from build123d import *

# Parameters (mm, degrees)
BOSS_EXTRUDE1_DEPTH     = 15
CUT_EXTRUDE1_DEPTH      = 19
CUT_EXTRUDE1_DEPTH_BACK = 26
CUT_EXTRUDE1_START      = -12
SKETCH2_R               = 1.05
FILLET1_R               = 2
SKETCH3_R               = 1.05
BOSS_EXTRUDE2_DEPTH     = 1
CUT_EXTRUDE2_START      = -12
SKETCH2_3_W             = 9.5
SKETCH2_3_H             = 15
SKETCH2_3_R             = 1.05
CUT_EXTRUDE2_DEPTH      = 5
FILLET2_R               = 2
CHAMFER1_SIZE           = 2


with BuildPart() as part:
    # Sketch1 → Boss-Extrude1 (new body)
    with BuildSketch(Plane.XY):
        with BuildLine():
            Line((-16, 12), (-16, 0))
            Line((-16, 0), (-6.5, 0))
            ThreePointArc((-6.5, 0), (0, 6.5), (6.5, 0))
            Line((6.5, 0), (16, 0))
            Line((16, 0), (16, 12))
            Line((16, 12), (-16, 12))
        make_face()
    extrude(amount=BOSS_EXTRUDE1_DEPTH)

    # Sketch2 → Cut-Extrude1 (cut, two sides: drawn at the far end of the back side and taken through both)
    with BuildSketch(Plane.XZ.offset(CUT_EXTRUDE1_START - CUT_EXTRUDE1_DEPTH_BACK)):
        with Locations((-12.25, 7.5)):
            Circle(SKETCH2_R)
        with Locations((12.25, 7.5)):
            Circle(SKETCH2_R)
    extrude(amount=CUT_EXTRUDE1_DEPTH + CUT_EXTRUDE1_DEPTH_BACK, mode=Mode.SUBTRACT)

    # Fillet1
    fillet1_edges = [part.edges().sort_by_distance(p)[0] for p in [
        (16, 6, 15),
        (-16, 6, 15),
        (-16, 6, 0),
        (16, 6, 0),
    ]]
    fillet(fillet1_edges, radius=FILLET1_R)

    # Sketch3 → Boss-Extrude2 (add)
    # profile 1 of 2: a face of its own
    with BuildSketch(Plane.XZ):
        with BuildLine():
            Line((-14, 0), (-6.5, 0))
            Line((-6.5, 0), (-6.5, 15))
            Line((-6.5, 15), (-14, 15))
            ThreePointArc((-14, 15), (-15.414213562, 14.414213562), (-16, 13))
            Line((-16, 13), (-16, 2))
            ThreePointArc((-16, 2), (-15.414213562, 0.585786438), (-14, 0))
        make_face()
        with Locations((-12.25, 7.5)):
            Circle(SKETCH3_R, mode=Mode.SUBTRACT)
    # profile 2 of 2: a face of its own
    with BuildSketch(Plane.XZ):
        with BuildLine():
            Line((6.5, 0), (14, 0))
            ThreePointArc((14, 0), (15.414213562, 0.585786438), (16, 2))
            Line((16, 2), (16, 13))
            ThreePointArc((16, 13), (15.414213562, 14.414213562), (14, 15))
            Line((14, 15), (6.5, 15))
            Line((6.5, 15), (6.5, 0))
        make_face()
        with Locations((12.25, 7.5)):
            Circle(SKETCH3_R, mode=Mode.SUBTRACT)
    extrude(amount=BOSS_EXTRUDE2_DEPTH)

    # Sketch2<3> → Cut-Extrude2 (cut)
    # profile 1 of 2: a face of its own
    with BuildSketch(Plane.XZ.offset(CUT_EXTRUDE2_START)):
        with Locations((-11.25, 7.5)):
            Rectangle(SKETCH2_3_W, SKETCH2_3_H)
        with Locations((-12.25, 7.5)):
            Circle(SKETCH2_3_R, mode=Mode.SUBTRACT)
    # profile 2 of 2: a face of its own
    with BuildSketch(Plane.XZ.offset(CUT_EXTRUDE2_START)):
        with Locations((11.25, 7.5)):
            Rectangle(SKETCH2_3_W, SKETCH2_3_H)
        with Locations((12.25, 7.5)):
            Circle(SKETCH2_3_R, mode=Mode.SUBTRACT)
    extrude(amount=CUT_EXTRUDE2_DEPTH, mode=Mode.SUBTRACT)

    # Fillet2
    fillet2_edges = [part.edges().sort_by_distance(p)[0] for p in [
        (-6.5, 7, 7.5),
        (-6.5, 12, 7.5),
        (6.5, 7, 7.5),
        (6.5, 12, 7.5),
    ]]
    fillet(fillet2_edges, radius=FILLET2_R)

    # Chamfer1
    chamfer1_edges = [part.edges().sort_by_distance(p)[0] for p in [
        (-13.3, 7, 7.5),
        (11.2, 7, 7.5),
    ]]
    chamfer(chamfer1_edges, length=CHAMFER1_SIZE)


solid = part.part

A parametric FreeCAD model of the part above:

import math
import FreeCAD as App
import Part
import Sketcher

V = App.Vector


def edges_at(feature, points):
    """Names of the edges that pass closest to the given points."""
    edges = feature.Shape.Edges
    near = lambda p: min(range(len(edges)), key=lambda i: edges[i].distToShape(Part.Vertex(*p))[0])
    return sorted({f"Edge{near(p) + 1}" for p in points})

doc = App.newDocument("Part")
params = doc.addObject("Spreadsheet::Sheet", "Params")
for row, (alias, value) in enumerate([
    ("sketch1_radius", "6.5 mm"),
    ("sketch1_width", "32 mm"),
    ("sketch1_height", "12 mm"),
    ("pad1_length", "15 mm"),
    ("sketch2_diameter", "2.1 mm"),
    ("fillet_radius", "2 mm"),
    ("sketch3_radius", "2 mm"),
    ("sketch3_diameter", "2.1 mm"),
    ("sketch3_height", "15 mm"),
    ("sketch3_width", "7.5 mm"),
    ("pad2_length", "1 mm"),
    ("sketch4_diameter", "2.1 mm"),
    ("sketch4_height", "15 mm"),
    ("sketch4_width", "9.5 mm"),
    ("pocket2_length", "5 mm"),
    ("fillet2_radius", "2 mm"),
    ("chamfer_size", "2 mm"),
], start=1):
    params.set(f"A{row}", alias)
    params.set(f"B{row}", "=" + value)
    params.setAlias(f"B{row}", alias)

body = doc.addObject("PartDesign::Body", "Body")

# Sketch on XY plane
sketch1 = body.newObject("Sketcher::SketchObject", "Sketch")
sketch1.AttachmentSupport = (doc.getObject("XY_Plane"), [""])
sketch1.MapMode = "FlatFace"
sketch1.addGeometry([
    Part.LineSegment(V(-16, 12, 0), V(-16, 0, 0)),  # 0
    Part.LineSegment(V(-16, 0, 0), V(-6.5, 0, 0)),  # 1
    Part.ArcOfCircle(Part.Circle(V(0, 0, 0), V(0, 0, 1), 6.5), math.radians(0), math.radians(180)),  # 2
    Part.LineSegment(V(6.5, 0, 0), V(16, 0, 0)),  # 3
    Part.LineSegment(V(16, 0, 0), V(16, 12, 0)),  # 4
    Part.LineSegment(V(16, 12, 0), V(-16, 12, 0)),  # 5
], False)
sketch1.addConstraint([
    Sketcher.Constraint("Coincident", 0, 2, 1, 1),
    Sketcher.Constraint("Coincident", 1, 2, 2, 2),
    Sketcher.Constraint("Coincident", 2, 1, 3, 1),
    Sketcher.Constraint("Coincident", 3, 2, 4, 1),
    Sketcher.Constraint("Coincident", 4, 2, 5, 1),
    Sketcher.Constraint("Coincident", 5, 2, 0, 1),
    Sketcher.Constraint("Vertical", 0),
    Sketcher.Constraint("Horizontal", 1),
    Sketcher.Constraint("Horizontal", 3),
    Sketcher.Constraint("Vertical", 4),
    Sketcher.Constraint("Horizontal", 5),
    Sketcher.Constraint("Coincident", 2, 3, -1, 1),
    Sketcher.Constraint("Symmetric", 0, 2, 3, 2, -1, 1),
    Sketcher.Constraint("PointOnObject", 0, 2, -1),
    Sketcher.Constraint("Radius", 2, 6.5),
    Sketcher.Constraint("DistanceX", 5, 2, 5, 1, 32.0),
    Sketcher.Constraint("DistanceY", 0, 2, 0, 1, 12.0),
])
sketch1.setExpression("Constraints[14]", "Params.sketch1_radius")
sketch1.setExpression("Constraints[15]", "Params.sketch1_width")
sketch1.setExpression("Constraints[16]", "Params.sketch1_height")
pad1 = body.newObject("PartDesign::Pad", "Pad")
pad1.Profile = sketch1
pad1.setExpression("Length", "Params.pad1_length")

# Sketch on XZ plane
sketch2 = body.newObject("Sketcher::SketchObject", "Sketch001")
sketch2.AttachmentSupport = (doc.getObject("XZ_Plane"), [""])
sketch2.MapMode = "FlatFace"
sketch2.AttachmentOffset = App.Placement(V(0, 0, -12), App.Rotation())
sketch2.addGeometry([
    Part.Circle(V(-12.25, 7.5, 0), V(0, 0, 1), 1.05),
    Part.Circle(V(12.25, 7.5, 0), V(0, 0, 1), 1.05),
], False)
sketch2.addConstraint([
    Sketcher.Constraint("Equal", 0, 1),
    Sketcher.Constraint("Symmetric", 0, 3, 1, 3, -2),
    Sketcher.Constraint("Diameter", 0, 2.1),
    Sketcher.Constraint("DistanceY", -1, 1, 0, 3, 7.5),
    Sketcher.Constraint("DistanceX", 0, 3, 1, 3, 24.5),
])
sketch2.setExpression("Constraints[2]", "Params.sketch2_diameter")
pocket1 = body.newObject("PartDesign::Pocket", "Pocket")
pocket1.Profile = sketch2
pocket1.Type = "ThroughAll"
pocket1.Midplane = True
doc.recompute()

fillet = body.newObject("PartDesign::Fillet", "Fillet")
fillet.Base = (pocket1, edges_at(pocket1, [
    (16, 6, 15),
    (-16, 6, 15),
    (-16, 6, 0),
    (16, 6, 0),
]))
fillet.setExpression("Radius", "Params.fillet_radius")

# Sketch on XZ plane
sketch3 = body.newObject("Sketcher::SketchObject", "Sketch002")
sketch3.AttachmentSupport = (doc.getObject("XZ_Plane"), [""])
sketch3.MapMode = "FlatFace"
sketch3.addGeometry([
    Part.LineSegment(V(-14, 0, 0), V(-6.5, 0, 0)),  # 0
    Part.LineSegment(V(-6.5, 0, 0), V(-6.5, 15, 0)),  # 1
    Part.LineSegment(V(-6.5, 15, 0), V(-14, 15, 0)),  # 2
    Part.ArcOfCircle(Part.Circle(V(-14, 13, 0), V(0, 0, 1), 2), math.radians(90), math.radians(180)),  # 3
    Part.LineSegment(V(-16, 13, 0), V(-16, 2, 0)),  # 4
    Part.ArcOfCircle(Part.Circle(V(-14, 2, 0), V(0, 0, 1), 2), math.radians(-180), math.radians(-90)),  # 5
    Part.Circle(V(-12.25, 7.5, 0), V(0, 0, 1), 1.05),  # 6
    Part.LineSegment(V(6.5, 0, 0), V(14, 0, 0)),  # 7
    Part.ArcOfCircle(Part.Circle(V(14, 2, 0), V(0, 0, 1), 2), math.radians(-90), math.radians(0)),  # 8
    Part.LineSegment(V(16, 2, 0), V(16, 13, 0)),  # 9
    Part.ArcOfCircle(Part.Circle(V(14, 13, 0), V(0, 0, 1), 2), math.radians(0), math.radians(90)),  # 10
    Part.LineSegment(V(14, 15, 0), V(6.5, 15, 0)),  # 11
    Part.LineSegment(V(6.5, 15, 0), V(6.5, 0, 0)),  # 12
    Part.Circle(V(12.25, 7.5, 0), V(0, 0, 1), 1.05),  # 13
], False)
sketch3.addConstraint([
    Sketcher.Constraint("Coincident", 0, 2, 1, 1),
    Sketcher.Constraint("Coincident", 1, 2, 2, 1),
    Sketcher.Constraint("Tangent", 2, 2, 3, 1),
    Sketcher.Constraint("Tangent", 3, 2, 4, 1),
    Sketcher.Constraint("Tangent", 4, 2, 5, 1),
    Sketcher.Constraint("Tangent", 5, 2, 0, 1),
    Sketcher.Constraint("Tangent", 7, 2, 8, 1),
    Sketcher.Constraint("Tangent", 8, 2, 9, 1),
    Sketcher.Constraint("Tangent", 9, 2, 10, 1),
    Sketcher.Constraint("Tangent", 10, 2, 11, 1),
    Sketcher.Constraint("Coincident", 11, 2, 12, 1),
    Sketcher.Constraint("Coincident", 12, 2, 7, 1),
    Sketcher.Constraint("Horizontal", 0),
    Sketcher.Constraint("Vertical", 1),
    Sketcher.Constraint("Horizontal", 2),
    Sketcher.Constraint("Vertical", 4),
    Sketcher.Constraint("Horizontal", 7),
    Sketcher.Constraint("Vertical", 9),
    Sketcher.Constraint("Horizontal", 11),
    Sketcher.Constraint("Vertical", 12),
    Sketcher.Constraint("Equal", 3, 5),
    Sketcher.Constraint("Equal", 5, 8),
    Sketcher.Constraint("Equal", 8, 10),
    Sketcher.Constraint("Equal", 6, 13),
    Sketcher.Constraint("Symmetric", 5, 2, 7, 2, -1, 1),
    Sketcher.Constraint("Symmetric", 6, 3, 13, 3, -2),
    Sketcher.Constraint("Symmetric", 1, 2, 11, 2, -2),
    Sketcher.Constraint("PointOnObject", 0, 2, -1),
    Sketcher.Constraint("Radius", 3, 2.0),
    Sketcher.Constraint("Diameter", 6, 2.1),
    Sketcher.Constraint("DistanceY", 1, 1, 1, 2, 15.0),
    Sketcher.Constraint("DistanceX", 0, 1, 0, 2, 7.5),
    Sketcher.Constraint("DistanceX", 3, 3, -1, 1, 14.0),
    Sketcher.Constraint("DistanceY", -1, 1, 6, 3, 7.5),
    Sketcher.Constraint("DistanceX", 6, 3, 13, 3, 24.5),
])
sketch3.setExpression("Constraints[28]", "Params.sketch3_radius")
sketch3.setExpression("Constraints[29]", "Params.sketch3_diameter")
sketch3.setExpression("Constraints[30]", "Params.sketch3_height")
sketch3.setExpression("Constraints[31]", "Params.sketch3_width")
pad2 = body.newObject("PartDesign::Pad", "Pad001")
pad2.Profile = sketch3
pad2.setExpression("Length", "Params.pad2_length")

# Sketch on XZ plane
sketch4 = body.newObject("Sketcher::SketchObject", "Sketch003")
sketch4.AttachmentSupport = (doc.getObject("XZ_Plane"), [""])
sketch4.MapMode = "FlatFace"
sketch4.AttachmentOffset = App.Placement(V(0, 0, -12), App.Rotation())
sketch4.addGeometry([
    Part.LineSegment(V(-16, 15, 0), V(-16, 0, 0)),  # 0
    Part.LineSegment(V(-16, 0, 0), V(-6.5, 0, 0)),  # 1
    Part.LineSegment(V(-6.5, 0, 0), V(-6.5, 15, 0)),  # 2
    Part.LineSegment(V(-6.5, 15, 0), V(-16, 15, 0)),  # 3
    Part.Circle(V(-12.25, 7.5, 0), V(0, 0, 1), 1.05),  # 4
    Part.LineSegment(V(6.5, 15, 0), V(6.5, 0, 0)),  # 5
    Part.LineSegment(V(6.5, 0, 0), V(16, 0, 0)),  # 6
    Part.LineSegment(V(16, 0, 0), V(16, 15, 0)),  # 7
    Part.LineSegment(V(16, 15, 0), V(6.5, 15, 0)),  # 8
    Part.Circle(V(12.25, 7.5, 0), V(0, 0, 1), 1.05),  # 9
], False)
sketch4.addConstraint([
    Sketcher.Constraint("Coincident", 0, 2, 1, 1),
    Sketcher.Constraint("Coincident", 1, 2, 2, 1),
    Sketcher.Constraint("Coincident", 2, 2, 3, 1),
    Sketcher.Constraint("Coincident", 3, 2, 0, 1),
    Sketcher.Constraint("Coincident", 5, 2, 6, 1),
    Sketcher.Constraint("Coincident", 6, 2, 7, 1),
    Sketcher.Constraint("Coincident", 7, 2, 8, 1),
    Sketcher.Constraint("Coincident", 8, 2, 5, 1),
    Sketcher.Constraint("Vertical", 0),
    Sketcher.Constraint("Horizontal", 1),
    Sketcher.Constraint("Vertical", 2),
    Sketcher.Constraint("Horizontal", 3),
    Sketcher.Constraint("Vertical", 5),
    Sketcher.Constraint("Horizontal", 6),
    Sketcher.Constraint("Vertical", 7),
    Sketcher.Constraint("Horizontal", 8),
    Sketcher.Constraint("Equal", 4, 9),
    Sketcher.Constraint("Symmetric", 1, 2, 5, 2, -1, 1),
    Sketcher.Constraint("Symmetric", 4, 3, 9, 3, -2),
    Sketcher.Constraint("Symmetric", 0, 2, 6, 2, -2),
    Sketcher.Constraint("Horizontal", 3, 2, 7, 2),
    Sketcher.Constraint("Diameter", 4, 2.1),
    Sketcher.Constraint("DistanceY", 0, 2, 0, 1, 15.0),
    Sketcher.Constraint("DistanceX", 1, 1, 1, 2, 9.5),
    Sketcher.Constraint("DistanceX", 0, 2, -1, 1, 16.0),
    Sketcher.Constraint("DistanceY", -1, 1, 4, 3, 7.5),
    Sketcher.Constraint("DistanceX", 4, 3, 9, 3, 24.5),
])
sketch4.setExpression("Constraints[21]", "Params.sketch4_diameter")
sketch4.setExpression("Constraints[22]", "Params.sketch4_height")
sketch4.setExpression("Constraints[23]", "Params.sketch4_width")
pocket2 = body.newObject("PartDesign::Pocket", "Pocket001")
pocket2.Profile = sketch4
pocket2.setExpression("Length", "Params.pocket2_length")
pocket2.Reversed = True
doc.recompute()

fillet2 = body.newObject("PartDesign::Fillet", "Fillet001")
fillet2.Base = (pocket2, edges_at(pocket2, [
    (-6.5, 7, 7.5),
    (-6.5, 12, 7.5),
    (6.5, 7, 7.5),
    (6.5, 12, 7.5),
]))
fillet2.setExpression("Radius", "Params.fillet2_radius")
doc.recompute()

chamfer = body.newObject("PartDesign::Chamfer", "Chamfer")
chamfer.Base = (fillet2, edges_at(fillet2, [(-13.3, 7, 7.5), (11.2, 7, 7.5)]))
chamfer.setExpression("Size", "Params.chamfer_size")

doc.recompute()
